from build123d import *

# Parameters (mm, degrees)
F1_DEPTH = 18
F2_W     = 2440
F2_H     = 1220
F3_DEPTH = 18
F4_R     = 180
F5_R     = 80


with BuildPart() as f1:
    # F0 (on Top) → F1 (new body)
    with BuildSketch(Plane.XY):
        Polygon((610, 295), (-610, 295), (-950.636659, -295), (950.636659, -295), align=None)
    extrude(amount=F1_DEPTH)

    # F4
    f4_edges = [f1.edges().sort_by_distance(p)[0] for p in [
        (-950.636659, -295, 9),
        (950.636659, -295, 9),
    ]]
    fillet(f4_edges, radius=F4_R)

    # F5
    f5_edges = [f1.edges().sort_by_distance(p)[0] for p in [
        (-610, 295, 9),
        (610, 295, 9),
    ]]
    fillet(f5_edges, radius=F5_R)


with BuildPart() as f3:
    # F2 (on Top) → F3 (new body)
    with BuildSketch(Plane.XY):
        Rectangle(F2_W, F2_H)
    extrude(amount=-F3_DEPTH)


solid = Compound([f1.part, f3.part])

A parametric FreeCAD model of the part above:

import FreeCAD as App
import Part
import Sketcher

V = App.Vector
Q = App.Units.Quantity


def edges_at(feature, points):
    """Names of the edges that pass closest to the given points."""
    edges = feature.Shape.Edges
    near = lambda p: min(range(len(edges)), key=lambda i: edges[i].distToShape(Part.Vertex(*p))[0])
    return sorted({f"Edge{near(p) + 1}" for p in points})


def add_polygon(sketch, points):
    """Adds a closed chain of lines whose ends are joined by coincident constraints."""
    first, n = sketch.GeometryCount, len(points)
    for a, b in zip(points, points[1:] + points[:1]):
        sketch.addGeometry(Part.LineSegment(App.Vector(*a, 0), App.Vector(*b, 0)), False)
    for i in range(n):
        sketch.addConstraint(Sketcher.Constraint("Coincident", first + i, 2, first + (i + 1) % n, 1))

doc = App.newDocument("Part")
params = doc.addObject("Spreadsheet::Sheet", "Params")
for row, (alias, value) in enumerate([
    ("sketch1_width", "1220 mm"),
    ("pad1_length", "18 mm"),
    ("fillet_radius", "180 mm"),
    ("fillet2_radius", "80 mm"),
    ("sketch2_width", "2440 mm"),
    ("sketch2_height", "1220 mm"),
    ("pad2_length", "18 mm"),
], start=1):
    params.set(f"A{row}", alias)
    params.set(f"B{row}", "=" + value)
    params.setAlias(f"B{row}", alias)

body = doc.addObject("PartDesign::Body", "Body")

# Sketch on XY plane
sketch1 = body.newObject("Sketcher::SketchObject", "Sketch")
sketch1.AttachmentSupport = (doc.getObject("XY_Plane"), [""])
sketch1.MapMode = "FlatFace"
add_polygon(sketch1, [(610, 295), (-610, 295), (-950.636659, -295), (950.636659, -295)])  # lines 0-3
sketch1.addConstraint([
    Sketcher.Constraint("Horizontal", 0),
    Sketcher.Constraint("Horizontal", 2),
    Sketcher.Constraint("Equal", 1, 3),
    Sketcher.Constraint("DistanceX", 0, 2, 0, 1, Q("1220 mm")),
    Sketcher.Constraint("Angle", 1, Q("-120 deg")),
    Sketcher.Constraint("DistanceX", 0, 2, -1, 1, Q("610 mm")),
    Sketcher.Constraint("DistanceY", -1, 1, 0, 2, Q("295 mm")),
    Sketcher.Constraint("DistanceY", 1, 2, -1, 1, Q("295 mm")),
])
sketch1.setExpression("Constraints[7]", "Params.sketch1_width")
pad1 = body.newObject("PartDesign::Pad", "Pad")
pad1.Profile = sketch1
pad1.setExpression("Length", "Params.pad1_length")
doc.recompute()

fillet = body.newObject("PartDesign::Fillet", "Fillet")
fillet.Base = (pad1, edges_at(pad1, [(-950.637, -295, 9), (950.637, -295, 9)]))
fillet.setExpression("Radius", "Params.fillet_radius")
doc.recompute()

fillet2 = body.newObject("PartDesign::Fillet", "Fillet001")
fillet2.Base = (fillet, edges_at(fillet, [(-610, 295, 9), (610, 295, 9)]))
fillet2.setExpression("Radius", "Params.fillet2_radius")
body2 = doc.addObject("PartDesign::Body", "Body001")

# Sketch on XY plane
sketch2 = body2.newObject("Sketcher::SketchObject", "Sketch001")
sketch2.AttachmentSupport = (doc.getObject("XY_Plane001"), [""])
sketch2.MapMode = "FlatFace"
add_polygon(sketch2, [(-1220, 610), (-1220, -610), (1220, -610), (1220, 610)])  # lines 0-3
sketch2.addConstraint([
    Sketcher.Constraint("Vertical", 0),
    Sketcher.Constraint("Horizontal", 1),
    Sketcher.Constraint("Vertical", 2),
    Sketcher.Constraint("Horizontal", 3),
    Sketcher.Constraint("Symmetric", 0, 2, 2, 2, -1, 1),
    Sketcher.Constraint("DistanceX", 1, 1, 1, 2, Q("2440 mm")),
    Sketcher.Constraint("DistanceY", 0, 2, 0, 1, Q("1220 mm")),
])
sketch2.setExpression("Constraints[9]", "Params.sketch2_width")
sketch2.setExpression("Constraints[10]", "Params.sketch2_height")
pad2 = body2.newObject("PartDesign::Pad", "Pad001")
pad2.Profile = sketch2
pad2.setExpression("Length", "Params.pad2_length")
pad2.Reversed = True

doc.recompute()
